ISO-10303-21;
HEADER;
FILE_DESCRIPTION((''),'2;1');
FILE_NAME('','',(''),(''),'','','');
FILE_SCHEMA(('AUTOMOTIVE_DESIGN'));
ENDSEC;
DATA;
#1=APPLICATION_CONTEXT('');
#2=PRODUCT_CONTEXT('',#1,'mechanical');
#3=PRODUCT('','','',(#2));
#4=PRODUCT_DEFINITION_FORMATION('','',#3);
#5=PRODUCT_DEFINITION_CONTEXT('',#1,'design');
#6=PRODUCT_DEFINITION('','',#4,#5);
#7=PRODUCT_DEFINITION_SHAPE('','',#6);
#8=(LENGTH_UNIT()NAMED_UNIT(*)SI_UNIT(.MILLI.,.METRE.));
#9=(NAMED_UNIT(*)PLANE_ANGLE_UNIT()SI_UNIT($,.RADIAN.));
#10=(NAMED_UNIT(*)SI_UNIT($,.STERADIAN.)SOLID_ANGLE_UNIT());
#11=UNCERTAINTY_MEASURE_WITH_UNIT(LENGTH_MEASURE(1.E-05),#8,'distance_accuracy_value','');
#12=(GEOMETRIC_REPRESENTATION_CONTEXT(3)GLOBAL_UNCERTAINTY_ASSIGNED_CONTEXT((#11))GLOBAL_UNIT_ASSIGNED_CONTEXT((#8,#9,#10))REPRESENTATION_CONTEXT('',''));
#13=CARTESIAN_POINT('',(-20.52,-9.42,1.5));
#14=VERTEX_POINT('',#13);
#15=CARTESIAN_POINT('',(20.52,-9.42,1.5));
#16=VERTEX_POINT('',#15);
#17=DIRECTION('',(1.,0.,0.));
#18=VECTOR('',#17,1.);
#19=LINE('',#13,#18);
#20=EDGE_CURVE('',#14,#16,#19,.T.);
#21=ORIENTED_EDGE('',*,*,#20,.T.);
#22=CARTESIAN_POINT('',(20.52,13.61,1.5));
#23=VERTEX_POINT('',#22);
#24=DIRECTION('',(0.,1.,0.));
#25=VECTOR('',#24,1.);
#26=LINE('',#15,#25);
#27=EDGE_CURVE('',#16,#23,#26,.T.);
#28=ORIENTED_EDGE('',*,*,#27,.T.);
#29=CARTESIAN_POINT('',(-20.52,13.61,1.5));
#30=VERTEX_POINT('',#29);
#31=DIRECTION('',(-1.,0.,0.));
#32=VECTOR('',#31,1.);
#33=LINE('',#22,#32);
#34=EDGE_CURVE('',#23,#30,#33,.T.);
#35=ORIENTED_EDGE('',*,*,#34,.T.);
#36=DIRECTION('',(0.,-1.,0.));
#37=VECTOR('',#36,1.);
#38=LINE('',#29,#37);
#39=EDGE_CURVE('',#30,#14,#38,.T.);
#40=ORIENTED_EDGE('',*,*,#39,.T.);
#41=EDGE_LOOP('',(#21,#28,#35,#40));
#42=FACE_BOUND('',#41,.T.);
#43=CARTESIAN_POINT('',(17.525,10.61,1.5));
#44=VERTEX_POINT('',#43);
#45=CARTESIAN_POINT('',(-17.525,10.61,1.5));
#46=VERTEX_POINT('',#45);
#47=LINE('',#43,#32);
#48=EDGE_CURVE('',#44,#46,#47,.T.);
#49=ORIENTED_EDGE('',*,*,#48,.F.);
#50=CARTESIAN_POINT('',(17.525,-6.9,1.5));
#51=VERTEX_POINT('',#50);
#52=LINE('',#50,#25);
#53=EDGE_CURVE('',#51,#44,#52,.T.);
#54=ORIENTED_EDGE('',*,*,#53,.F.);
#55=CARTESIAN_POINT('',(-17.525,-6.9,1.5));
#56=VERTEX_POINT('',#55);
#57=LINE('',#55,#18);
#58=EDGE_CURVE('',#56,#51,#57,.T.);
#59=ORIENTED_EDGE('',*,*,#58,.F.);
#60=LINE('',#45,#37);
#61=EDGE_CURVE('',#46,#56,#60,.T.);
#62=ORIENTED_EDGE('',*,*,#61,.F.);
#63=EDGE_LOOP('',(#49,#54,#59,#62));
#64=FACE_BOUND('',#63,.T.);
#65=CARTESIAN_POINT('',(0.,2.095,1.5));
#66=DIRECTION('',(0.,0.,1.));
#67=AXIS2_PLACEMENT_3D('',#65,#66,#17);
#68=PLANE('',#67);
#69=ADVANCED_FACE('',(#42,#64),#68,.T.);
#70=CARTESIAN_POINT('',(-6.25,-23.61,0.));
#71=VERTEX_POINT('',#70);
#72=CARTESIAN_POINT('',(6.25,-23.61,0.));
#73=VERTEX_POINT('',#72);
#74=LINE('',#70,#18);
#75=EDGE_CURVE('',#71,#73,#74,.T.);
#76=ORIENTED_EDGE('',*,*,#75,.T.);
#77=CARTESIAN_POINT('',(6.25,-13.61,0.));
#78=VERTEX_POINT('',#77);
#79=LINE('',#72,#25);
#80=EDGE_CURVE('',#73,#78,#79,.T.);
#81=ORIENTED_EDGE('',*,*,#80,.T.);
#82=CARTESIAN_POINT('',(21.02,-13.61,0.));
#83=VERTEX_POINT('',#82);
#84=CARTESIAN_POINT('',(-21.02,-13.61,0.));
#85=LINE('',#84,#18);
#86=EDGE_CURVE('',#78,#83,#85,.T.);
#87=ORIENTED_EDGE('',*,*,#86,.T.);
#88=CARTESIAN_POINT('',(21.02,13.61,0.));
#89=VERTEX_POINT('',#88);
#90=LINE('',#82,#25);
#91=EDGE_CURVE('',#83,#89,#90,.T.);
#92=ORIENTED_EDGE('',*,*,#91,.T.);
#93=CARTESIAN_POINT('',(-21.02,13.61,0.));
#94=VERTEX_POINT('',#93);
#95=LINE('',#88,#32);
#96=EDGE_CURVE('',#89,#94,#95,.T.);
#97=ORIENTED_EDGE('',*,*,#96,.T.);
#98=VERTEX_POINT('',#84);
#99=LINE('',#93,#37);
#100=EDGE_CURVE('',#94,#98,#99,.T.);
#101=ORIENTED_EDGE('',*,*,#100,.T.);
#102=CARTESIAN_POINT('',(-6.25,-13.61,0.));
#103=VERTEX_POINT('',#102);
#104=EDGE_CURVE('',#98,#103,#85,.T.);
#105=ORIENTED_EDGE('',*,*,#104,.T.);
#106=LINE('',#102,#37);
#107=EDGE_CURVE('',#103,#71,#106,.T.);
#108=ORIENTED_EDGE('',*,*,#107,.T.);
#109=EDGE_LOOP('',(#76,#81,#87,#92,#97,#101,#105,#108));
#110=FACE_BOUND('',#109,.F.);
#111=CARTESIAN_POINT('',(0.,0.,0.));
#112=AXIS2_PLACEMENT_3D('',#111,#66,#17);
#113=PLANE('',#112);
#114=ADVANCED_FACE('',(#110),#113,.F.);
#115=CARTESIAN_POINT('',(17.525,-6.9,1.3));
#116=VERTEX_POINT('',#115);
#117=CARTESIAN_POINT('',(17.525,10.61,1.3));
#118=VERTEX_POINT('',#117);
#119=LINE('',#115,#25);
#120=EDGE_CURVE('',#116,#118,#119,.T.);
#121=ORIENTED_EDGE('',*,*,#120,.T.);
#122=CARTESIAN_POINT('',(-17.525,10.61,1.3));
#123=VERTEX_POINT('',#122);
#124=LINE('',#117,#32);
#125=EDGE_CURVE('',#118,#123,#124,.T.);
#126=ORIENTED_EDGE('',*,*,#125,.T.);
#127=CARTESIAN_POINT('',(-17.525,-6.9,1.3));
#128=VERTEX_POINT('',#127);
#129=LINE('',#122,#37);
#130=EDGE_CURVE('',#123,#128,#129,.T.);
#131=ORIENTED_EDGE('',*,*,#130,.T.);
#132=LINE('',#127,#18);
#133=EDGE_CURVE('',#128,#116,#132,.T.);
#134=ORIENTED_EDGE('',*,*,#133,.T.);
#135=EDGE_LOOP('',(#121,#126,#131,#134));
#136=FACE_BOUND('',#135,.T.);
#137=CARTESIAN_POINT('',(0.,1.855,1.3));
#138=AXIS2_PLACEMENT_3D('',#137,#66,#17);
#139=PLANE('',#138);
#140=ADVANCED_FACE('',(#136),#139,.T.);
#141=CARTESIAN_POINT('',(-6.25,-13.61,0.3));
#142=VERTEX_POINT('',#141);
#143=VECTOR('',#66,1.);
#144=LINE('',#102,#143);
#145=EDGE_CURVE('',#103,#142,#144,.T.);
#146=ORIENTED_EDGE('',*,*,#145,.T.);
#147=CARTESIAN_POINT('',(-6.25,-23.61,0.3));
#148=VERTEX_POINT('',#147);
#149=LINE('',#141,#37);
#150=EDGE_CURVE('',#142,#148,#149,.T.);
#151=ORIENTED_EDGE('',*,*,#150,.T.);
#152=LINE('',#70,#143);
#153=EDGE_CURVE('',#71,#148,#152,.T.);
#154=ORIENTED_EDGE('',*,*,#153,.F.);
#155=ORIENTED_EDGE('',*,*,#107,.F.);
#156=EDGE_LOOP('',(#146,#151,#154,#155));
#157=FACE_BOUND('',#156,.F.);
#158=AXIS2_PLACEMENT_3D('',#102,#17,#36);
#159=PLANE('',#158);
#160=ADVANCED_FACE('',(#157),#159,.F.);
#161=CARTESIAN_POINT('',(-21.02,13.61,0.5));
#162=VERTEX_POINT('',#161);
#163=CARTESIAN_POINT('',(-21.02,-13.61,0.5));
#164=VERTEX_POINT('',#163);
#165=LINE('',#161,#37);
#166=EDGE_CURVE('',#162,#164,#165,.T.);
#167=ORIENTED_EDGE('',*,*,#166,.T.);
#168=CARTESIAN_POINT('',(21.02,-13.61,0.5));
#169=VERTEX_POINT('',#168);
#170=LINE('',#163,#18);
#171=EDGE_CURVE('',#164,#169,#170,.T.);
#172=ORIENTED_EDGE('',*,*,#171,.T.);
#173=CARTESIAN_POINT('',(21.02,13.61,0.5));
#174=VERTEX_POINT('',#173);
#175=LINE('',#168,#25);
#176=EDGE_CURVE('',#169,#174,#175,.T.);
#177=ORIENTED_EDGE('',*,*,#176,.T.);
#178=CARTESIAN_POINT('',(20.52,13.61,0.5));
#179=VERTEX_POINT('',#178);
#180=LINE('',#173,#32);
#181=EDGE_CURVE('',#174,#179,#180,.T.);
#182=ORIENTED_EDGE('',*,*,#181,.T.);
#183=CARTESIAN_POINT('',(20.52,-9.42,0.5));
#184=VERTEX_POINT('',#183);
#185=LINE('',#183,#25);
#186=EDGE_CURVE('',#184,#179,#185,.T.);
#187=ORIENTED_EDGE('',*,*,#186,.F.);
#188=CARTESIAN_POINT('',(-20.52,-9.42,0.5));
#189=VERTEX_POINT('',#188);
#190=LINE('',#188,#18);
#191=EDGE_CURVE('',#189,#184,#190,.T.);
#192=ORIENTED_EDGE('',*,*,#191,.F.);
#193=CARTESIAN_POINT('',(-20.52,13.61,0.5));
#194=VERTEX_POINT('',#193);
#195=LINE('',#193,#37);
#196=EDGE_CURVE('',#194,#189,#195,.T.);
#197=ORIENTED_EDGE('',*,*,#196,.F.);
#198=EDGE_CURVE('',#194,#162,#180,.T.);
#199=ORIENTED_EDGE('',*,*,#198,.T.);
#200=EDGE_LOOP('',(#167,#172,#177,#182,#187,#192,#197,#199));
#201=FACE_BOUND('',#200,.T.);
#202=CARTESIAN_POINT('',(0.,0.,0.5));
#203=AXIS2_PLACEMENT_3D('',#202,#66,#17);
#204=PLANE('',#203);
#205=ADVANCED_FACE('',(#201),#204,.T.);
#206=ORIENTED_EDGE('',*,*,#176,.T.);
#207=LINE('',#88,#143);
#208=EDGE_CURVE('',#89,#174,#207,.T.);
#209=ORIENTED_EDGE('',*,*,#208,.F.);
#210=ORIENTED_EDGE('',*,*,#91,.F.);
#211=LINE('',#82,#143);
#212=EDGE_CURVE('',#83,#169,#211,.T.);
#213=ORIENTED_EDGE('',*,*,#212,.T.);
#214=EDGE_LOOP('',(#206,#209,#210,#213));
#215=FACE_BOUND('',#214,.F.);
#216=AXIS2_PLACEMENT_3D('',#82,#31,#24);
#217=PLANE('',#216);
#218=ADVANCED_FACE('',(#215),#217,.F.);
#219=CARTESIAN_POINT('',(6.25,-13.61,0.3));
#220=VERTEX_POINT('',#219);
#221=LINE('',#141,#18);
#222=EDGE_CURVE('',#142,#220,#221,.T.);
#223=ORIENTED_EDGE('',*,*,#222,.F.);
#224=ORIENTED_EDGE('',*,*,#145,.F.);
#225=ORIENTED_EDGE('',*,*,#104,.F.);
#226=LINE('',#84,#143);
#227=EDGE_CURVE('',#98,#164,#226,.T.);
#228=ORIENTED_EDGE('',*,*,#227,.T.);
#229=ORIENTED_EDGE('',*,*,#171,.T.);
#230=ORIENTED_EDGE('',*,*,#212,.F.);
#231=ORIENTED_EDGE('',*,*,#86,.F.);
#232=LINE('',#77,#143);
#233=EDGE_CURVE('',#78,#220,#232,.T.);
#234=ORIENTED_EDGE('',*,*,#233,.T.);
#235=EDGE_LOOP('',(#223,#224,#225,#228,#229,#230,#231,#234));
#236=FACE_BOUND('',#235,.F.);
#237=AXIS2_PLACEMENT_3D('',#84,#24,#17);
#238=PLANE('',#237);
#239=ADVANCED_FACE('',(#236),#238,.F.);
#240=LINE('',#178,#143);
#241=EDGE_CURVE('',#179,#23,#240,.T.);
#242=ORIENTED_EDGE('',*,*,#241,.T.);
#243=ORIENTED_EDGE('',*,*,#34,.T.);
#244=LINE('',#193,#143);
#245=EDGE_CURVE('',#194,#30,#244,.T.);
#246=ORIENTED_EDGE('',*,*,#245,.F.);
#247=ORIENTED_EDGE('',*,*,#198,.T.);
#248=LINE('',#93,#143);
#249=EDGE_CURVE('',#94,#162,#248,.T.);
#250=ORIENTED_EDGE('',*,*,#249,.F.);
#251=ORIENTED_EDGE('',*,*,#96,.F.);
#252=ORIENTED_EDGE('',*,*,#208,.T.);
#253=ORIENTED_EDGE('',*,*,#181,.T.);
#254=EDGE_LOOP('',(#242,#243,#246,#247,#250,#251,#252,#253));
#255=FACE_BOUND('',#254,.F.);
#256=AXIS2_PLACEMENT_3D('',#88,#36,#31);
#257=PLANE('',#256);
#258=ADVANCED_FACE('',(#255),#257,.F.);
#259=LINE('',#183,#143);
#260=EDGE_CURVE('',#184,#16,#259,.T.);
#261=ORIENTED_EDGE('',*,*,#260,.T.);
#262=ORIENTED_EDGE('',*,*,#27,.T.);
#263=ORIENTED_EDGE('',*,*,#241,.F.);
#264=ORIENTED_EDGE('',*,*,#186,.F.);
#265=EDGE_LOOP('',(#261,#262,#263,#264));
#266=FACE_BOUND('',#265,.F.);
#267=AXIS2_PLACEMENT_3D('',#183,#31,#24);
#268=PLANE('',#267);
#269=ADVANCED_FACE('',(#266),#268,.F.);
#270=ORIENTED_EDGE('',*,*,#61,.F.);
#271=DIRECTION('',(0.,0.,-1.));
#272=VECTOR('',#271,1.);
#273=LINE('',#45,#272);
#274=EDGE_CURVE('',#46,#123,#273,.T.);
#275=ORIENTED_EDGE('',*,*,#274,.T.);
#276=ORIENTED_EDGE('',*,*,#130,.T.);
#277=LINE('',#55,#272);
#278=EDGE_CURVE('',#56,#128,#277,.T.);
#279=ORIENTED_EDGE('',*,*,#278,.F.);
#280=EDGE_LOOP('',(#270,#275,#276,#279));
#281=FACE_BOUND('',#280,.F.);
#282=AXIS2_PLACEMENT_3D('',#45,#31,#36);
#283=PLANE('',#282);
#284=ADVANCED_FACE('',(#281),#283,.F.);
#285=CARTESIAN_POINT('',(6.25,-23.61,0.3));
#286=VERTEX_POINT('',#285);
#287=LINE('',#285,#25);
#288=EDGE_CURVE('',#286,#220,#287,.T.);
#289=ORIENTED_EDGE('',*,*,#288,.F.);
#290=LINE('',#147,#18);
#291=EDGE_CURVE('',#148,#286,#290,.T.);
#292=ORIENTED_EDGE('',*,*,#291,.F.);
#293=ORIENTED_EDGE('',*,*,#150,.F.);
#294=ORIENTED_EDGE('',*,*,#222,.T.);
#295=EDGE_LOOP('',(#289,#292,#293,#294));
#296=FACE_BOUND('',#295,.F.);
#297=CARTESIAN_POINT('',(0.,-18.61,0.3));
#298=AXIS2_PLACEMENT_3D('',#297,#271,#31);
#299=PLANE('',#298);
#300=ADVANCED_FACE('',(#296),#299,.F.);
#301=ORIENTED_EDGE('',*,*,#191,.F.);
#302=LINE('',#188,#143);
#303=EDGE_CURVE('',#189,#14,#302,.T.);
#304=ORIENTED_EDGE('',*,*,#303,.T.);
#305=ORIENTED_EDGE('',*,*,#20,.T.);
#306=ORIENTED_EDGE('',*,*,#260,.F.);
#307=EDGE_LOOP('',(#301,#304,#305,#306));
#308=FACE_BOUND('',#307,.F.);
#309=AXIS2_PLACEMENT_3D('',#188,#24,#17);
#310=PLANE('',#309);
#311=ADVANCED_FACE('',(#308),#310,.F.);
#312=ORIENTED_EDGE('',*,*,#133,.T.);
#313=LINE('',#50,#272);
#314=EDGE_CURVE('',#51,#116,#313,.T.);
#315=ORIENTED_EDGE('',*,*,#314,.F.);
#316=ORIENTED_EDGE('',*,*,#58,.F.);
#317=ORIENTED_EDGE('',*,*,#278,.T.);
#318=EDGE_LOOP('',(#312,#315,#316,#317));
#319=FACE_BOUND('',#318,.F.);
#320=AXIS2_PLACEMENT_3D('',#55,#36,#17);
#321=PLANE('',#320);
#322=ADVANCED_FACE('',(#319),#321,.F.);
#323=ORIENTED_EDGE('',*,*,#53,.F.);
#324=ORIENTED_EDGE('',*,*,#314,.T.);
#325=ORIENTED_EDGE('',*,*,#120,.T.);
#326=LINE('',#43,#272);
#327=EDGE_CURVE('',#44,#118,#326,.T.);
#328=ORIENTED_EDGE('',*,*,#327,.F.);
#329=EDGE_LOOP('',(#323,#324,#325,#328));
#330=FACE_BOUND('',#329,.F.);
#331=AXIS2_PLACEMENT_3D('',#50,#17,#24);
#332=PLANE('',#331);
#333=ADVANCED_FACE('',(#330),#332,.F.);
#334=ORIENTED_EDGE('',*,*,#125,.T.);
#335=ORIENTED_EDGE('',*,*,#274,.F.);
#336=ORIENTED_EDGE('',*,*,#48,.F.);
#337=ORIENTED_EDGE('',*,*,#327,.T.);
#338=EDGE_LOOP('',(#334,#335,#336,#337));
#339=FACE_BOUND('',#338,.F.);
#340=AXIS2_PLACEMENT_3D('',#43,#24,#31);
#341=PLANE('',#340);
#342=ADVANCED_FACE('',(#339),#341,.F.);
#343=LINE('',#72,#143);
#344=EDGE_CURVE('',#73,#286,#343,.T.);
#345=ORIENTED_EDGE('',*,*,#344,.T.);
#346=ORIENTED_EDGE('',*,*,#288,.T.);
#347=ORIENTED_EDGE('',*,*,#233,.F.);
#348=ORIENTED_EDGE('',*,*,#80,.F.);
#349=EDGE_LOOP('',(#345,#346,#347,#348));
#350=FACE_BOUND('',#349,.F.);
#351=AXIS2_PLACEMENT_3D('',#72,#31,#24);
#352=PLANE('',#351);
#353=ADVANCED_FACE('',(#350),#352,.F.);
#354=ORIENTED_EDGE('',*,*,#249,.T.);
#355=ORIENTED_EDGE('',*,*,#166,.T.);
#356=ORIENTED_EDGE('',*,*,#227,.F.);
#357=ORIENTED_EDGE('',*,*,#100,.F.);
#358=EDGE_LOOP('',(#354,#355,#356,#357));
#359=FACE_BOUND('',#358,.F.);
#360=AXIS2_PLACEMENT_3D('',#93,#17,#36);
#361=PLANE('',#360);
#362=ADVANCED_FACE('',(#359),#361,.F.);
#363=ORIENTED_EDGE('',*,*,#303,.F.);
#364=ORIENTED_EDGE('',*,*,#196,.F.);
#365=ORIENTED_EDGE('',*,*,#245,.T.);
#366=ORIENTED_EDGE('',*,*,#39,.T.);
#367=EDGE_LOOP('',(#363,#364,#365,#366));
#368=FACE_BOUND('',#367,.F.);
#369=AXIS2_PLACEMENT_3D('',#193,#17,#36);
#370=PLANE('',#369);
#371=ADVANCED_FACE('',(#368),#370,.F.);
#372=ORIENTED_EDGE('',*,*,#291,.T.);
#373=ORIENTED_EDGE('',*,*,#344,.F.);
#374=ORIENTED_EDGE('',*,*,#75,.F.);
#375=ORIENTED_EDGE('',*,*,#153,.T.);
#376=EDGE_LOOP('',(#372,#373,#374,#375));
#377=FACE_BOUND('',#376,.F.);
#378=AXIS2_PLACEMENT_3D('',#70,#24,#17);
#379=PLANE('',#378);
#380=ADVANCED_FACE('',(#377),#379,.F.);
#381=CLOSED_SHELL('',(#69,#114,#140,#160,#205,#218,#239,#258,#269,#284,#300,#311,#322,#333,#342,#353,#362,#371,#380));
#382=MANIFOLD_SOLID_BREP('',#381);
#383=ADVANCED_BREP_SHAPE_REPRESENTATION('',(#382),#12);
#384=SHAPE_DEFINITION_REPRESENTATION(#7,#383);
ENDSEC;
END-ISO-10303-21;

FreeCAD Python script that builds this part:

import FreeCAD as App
import Part
import Sketcher
from FreeCAD import Vector

doc = App.newDocument("Part")
body = doc.addObject("PartDesign::Body", "Body")

# Sketch on XY plane
sketch1 = body.newObject("Sketcher::SketchObject", "Sketch")
sketch1.AttachmentSupport = (doc.getObject("XY_Plane"), [""])
sketch1.MapMode = "FlatFace"
sketch1.addGeometry([
    Part.LineSegment(Vector(-21, 14, 0), Vector(-21, -14, 0)),
    Part.LineSegment(Vector(-21, -14, 0), Vector(21, -14, 0)),
    Part.LineSegment(Vector(21, -14, 0), Vector(21, 14, 0)),
    Part.LineSegment(Vector(21, 14, 0), Vector(-21, 14, 0)),
], False)
sketch1.addConstraint([
    Sketcher.Constraint("Coincident", 0, 2, 1, 1),
    Sketcher.Constraint("Coincident", 1, 2, 2, 1),
    Sketcher.Constraint("Coincident", 2, 2, 3, 1),
    Sketcher.Constraint("Coincident", 3, 2, 0, 1),
    Sketcher.Constraint("Vertical", 0),
    Sketcher.Constraint("Horizontal", 1),
    Sketcher.Constraint("Vertical", 2),
    Sketcher.Constraint("Horizontal", 3),
    Sketcher.Constraint("Symmetric", 0, 2, 2, 2, -1, 1),
    Sketcher.Constraint("DistanceX", 0, 2, -1, 1, 21.02),
    Sketcher.Constraint("DistanceY", 0, 2, 0, 1, 27.22),
])
pad1 = body.newObject("PartDesign::Pad", "Pad")
pad1.Profile = sketch1
pad1.Length = 0.5

# Sketch on XY plane
sketch2 = body.newObject("Sketcher::SketchObject", "Sketch001")
sketch2.AttachmentSupport = (doc.getObject("XY_Plane"), [""])
sketch2.MapMode = "FlatFace"
sketch2.AttachmentOffset = App.Placement(Vector(0, 0, 0.5), App.Rotation())
sketch2.addGeometry([
    Part.LineSegment(Vector(-21, 14, 0), Vector(-21, -9, 0)),
    Part.LineSegment(Vector(-21, -9, 0), Vector(21, -9, 0)),
    Part.LineSegment(Vector(21, -9, 0), Vector(21, 14, 0)),
    Part.LineSegment(Vector(21, 14, 0), Vector(-21, 14, 0)),
], False)
sketch2.addConstraint([
    Sketcher.Constraint("Coincident", 0, 2, 1, 1),
    Sketcher.Constraint("Coincident", 1, 2, 2, 1),
    Sketcher.Constraint("Coincident", 2, 2, 3, 1),
    Sketcher.Constraint("Coincident", 3, 2, 0, 1),
    Sketcher.Constraint("Vertical", 0),
    Sketcher.Constraint("Horizontal", 1),
    Sketcher.Constraint("Vertical", 2),
    Sketcher.Constraint("Horizontal", 3),
    Sketcher.Constraint("DistanceX", 0, 2, -1, 1, 20.52),
    Sketcher.Constraint("DistanceX", -1, 1, 1, 2, 20.52),
    Sketcher.Constraint("DistanceY", 0, 2, 0, 1, 23.03),
    Sketcher.Constraint("DistanceY", 0, 2, -1, 1, 9.42),
])
pad2 = body.newObject("PartDesign::Pad", "Pad001")
pad2.Profile = sketch2
pad2.Length = 1

# Sketch on XY plane
sketch3 = body.newObject("Sketcher::SketchObject", "Sketch002")
sketch3.AttachmentSupport = (doc.getObject("XY_Plane"), [""])
sketch3.MapMode = "FlatFace"
sketch3.AttachmentOffset = App.Placement(Vector(0, 0, 1.5), App.Rotation())
sketch3.addGeometry([
    Part.LineSegment(Vector(-18, 11, 0), Vector(-18, -7, 0)),
    Part.LineSegment(Vector(-18, -7, 0), Vector(18, -7, 0)),
    Part.LineSegment(Vector(18, -7, 0), Vector(18, 11, 0)),
    Part.LineSegment(Vector(18, 11, 0), Vector(-18, 11, 0)),
], False)
sketch3.addConstraint([
    Sketcher.Constraint("Coincident", 0, 2, 1, 1),
    Sketcher.Constraint("Coincident", 1, 2, 2, 1),
    Sketcher.Constraint("Coincident", 2, 2, 3, 1),
    Sketcher.Constraint("Coincident", 3, 2, 0, 1),
    Sketcher.Constraint("Vertical", 0),
    Sketcher.Constraint("Horizontal", 1),
    Sketcher.Constraint("Vertical", 2),
    Sketcher.Constraint("Horizontal", 3),
    Sketcher.Constraint("DistanceX", 0, 2, -1, 1, 17.525),
    Sketcher.Constraint("DistanceX", -1, 1, 1, 2, 17.525),
    Sketcher.Constraint("DistanceY", 0, 2, 0, 1, 17.51),
    Sketcher.Constraint("DistanceY", 0, 2, -1, 1, 6.9),
])
pocket1 = body.newObject("PartDesign::Pocket", "Pocket")
pocket1.Profile = sketch3
pocket1.Length = 0.2

# Sketch on XY plane
sketch4 = body.newObject("Sketcher::SketchObject", "Sketch003")
sketch4.AttachmentSupport = (doc.getObject("XY_Plane"), [""])
sketch4.MapMode = "FlatFace"
sketch4.addGeometry([
    Part.LineSegment(Vector(6, -14, 0), Vector(-6, -14, 0)),
    Part.LineSegment(Vector(-6, -14, 0), Vector(-6, -24, 0)),
    Part.LineSegment(Vector(-6, -24, 0), Vector(6, -24, 0)),
    Part.LineSegment(Vector(6, -24, 0), Vector(6, -14, 0)),
], False)
sketch4.addConstraint([
    Sketcher.Constraint("Coincident", 0, 2, 1, 1),
    Sketcher.Constraint("Coincident", 1, 2, 2, 1),
    Sketcher.Constraint("Coincident", 2, 2, 3, 1),
    Sketcher.Constraint("Coincident", 3, 2, 0, 1),
    Sketcher.Constraint("Horizontal", 0),
    Sketcher.Constraint("Vertical", 1),
    Sketcher.Constraint("Horizontal", 2),
    Sketcher.Constraint("Vertical", 3),
    Sketcher.Constraint("DistanceY", 1, 2, 1, 1, 10.0),
    Sketcher.Constraint("DistanceX", 0, 2, -1, 1, 6.25),
    Sketcher.Constraint("DistanceX", -1, 1, 2, 2, 6.25),
    Sketcher.Constraint("DistanceY", 0, 2, -1, 1, 13.61),
])
pad3 = body.newObject("PartDesign::Pad", "Pad002")
pad3.Profile = sketch4
pad3.Length = 0.3

doc.recompute()
